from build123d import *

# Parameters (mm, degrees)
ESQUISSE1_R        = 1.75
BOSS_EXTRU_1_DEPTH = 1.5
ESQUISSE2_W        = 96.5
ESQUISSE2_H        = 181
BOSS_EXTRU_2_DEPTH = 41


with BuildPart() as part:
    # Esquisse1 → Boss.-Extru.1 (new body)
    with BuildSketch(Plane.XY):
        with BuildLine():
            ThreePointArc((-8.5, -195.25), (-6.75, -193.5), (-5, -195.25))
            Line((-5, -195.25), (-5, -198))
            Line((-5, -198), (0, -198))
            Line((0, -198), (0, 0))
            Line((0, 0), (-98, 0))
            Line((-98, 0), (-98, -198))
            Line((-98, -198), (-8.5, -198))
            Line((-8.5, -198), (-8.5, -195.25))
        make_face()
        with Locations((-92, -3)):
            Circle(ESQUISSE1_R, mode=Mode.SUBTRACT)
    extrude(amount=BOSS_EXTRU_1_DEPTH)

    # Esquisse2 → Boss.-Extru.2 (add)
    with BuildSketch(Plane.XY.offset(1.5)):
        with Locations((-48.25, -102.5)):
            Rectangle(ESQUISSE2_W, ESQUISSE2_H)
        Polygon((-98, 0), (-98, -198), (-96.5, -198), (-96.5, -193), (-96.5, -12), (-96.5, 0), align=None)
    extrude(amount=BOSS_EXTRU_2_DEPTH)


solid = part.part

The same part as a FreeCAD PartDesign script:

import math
import FreeCAD as App
import Part
import Sketcher

V = App.Vector
Q = App.Units.Quantity


def add_polygon(sketch, points):
    """Adds a closed chain of lines whose ends are joined by coincident constraints."""
    first, n = sketch.GeometryCount, len(points)
    for a, b in zip(points, points[1:] + points[:1]):
        sketch.addGeometry(Part.LineSegment(App.Vector(*a, 0), App.Vector(*b, 0)), False)
    for i in range(n):
        sketch.addConstraint(Sketcher.Constraint("Coincident", first + i, 2, first + (i + 1) % n, 1))

doc = App.newDocument("Part")
body = doc.addObject("PartDesign::Body", "Body")

# Sketch on XY plane
sketch1 = body.newObject("Sketcher::SketchObject", "Sketch")
sketch1.AttachmentSupport = (doc.getObject("XY_Plane"), [""])
sketch1.MapMode = "FlatFace"
sketch1.addGeometry(Part.ArcOfCircle(Part.Circle(V(-6.8, -195.2, 0), V(0, 0, 1), 1.8), math.radians(0), math.radians(180)), False)
sketch1.addGeometry(Part.LineSegment(V(-5, -195.2, 0), V(-5, -198, 0)), False)
sketch1.addGeometry(Part.LineSegment(V(-5, -198, 0), V(0, -198, 0)), False)
sketch1.addGeometry(Part.LineSegment(V(0, -198, 0), V(0, 0, 0)), False)
sketch1.addGeometry(Part.LineSegment(V(0, 0, 0), V(-98, 0, 0)), False)
sketch1.addGeometry(Part.LineSegment(V(-98, 0, 0), V(-98, -198, 0)), False)
sketch1.addGeometry(Part.LineSegment(V(-98, -198, 0), V(-8.5, -198, 0)), False)
sketch1.addGeometry(Part.LineSegment(V(-8.5, -198, 0), V(-8.5, -195.2, 0)), False)
sketch1.addGeometry(Part.Circle(V(-92, -3, 0), V(0, 0, 1), 1.8), False)
sketch1.addConstraint(Sketcher.Constraint("Tangent", 0, 1, 1, 1))
sketch1.addConstraint(Sketcher.Constraint("Coincident", 1, 2, 2, 1))
sketch1.addConstraint(Sketcher.Constraint("Coincident", 2, 2, 3, 1))
sketch1.addConstraint(Sketcher.Constraint("Coincident", 3, 2, 4, 1))
sketch1.addConstraint(Sketcher.Constraint("Coincident", 4, 2, 5, 1))
sketch1.addConstraint(Sketcher.Constraint("Coincident", 5, 2, 6, 1))
sketch1.addConstraint(Sketcher.Constraint("Coincident", 6, 2, 7, 1))
sketch1.addConstraint(Sketcher.Constraint("Tangent", 7, 2, 0, 2))
sketch1.addConstraint(Sketcher.Constraint("Vertical", 1))
sketch1.addConstraint(Sketcher.Constraint("Horizontal", 2))
sketch1.addConstraint(Sketcher.Constraint("Vertical", 3))
sketch1.addConstraint(Sketcher.Constraint("Horizontal", 4))
sketch1.addConstraint(Sketcher.Constraint("Vertical", 5))
sketch1.addConstraint(Sketcher.Constraint("Horizontal", 6))
sketch1.addConstraint(Sketcher.Constraint("Vertical", 7))
sketch1.addConstraint(Sketcher.Constraint("Coincident", 3, 2, -1, 1))
sketch1.addConstraint(Sketcher.Constraint("Equal", 0, 8))
sketch1.addConstraint(Sketcher.Constraint("Horizontal", 2, 2, 5, 2))
sketch1.addConstraint(Sketcher.Constraint("Diameter", 8, Q("3.5 mm")))
sketch1.addConstraint(Sketcher.Constraint("DistanceX", 2, 1, 2, 2, Q("5 mm")))
sketch1.addConstraint(Sketcher.Constraint("DistanceX", 4, 2, 4, 1, Q("98 mm")))
sketch1.addConstraint(Sketcher.Constraint("DistanceY", 3, 1, 3, 2, Q("198 mm")))
sketch1.addConstraint(Sketcher.Constraint("DistanceX", 8, 3, -1, 1, Q("92 mm")))
sketch1.addConstraint(Sketcher.Constraint("DistanceY", 8, 3, -1, 1, Q("3 mm")))
sketch1.addConstraint(Sketcher.Constraint("DistanceY", 1, 2, 1, 1, Q("2.75 mm")))
pad1 = body.newObject("PartDesign::Pad", "Pad")
pad1.Profile = sketch1
pad1.Length = 1.5

# Sketch on XY plane
sketch2 = body.newObject("Sketcher::SketchObject", "Sketch001")
sketch2.AttachmentSupport = (doc.getObject("XY_Plane"), [""])
sketch2.MapMode = "FlatFace"
sketch2.AttachmentOffset = App.Placement(V(0, 0, 1.5), App.Rotation())
add_polygon(sketch2, [(-96.5, -193), (0, -193), (0, -12), (-96.5, -12), (-96.5, 0), (-98, 0), (-98, -198), (-96.5, -198)])  # lines 0-7
sketch2.addConstraint(Sketcher.Constraint("Horizontal", 0))
sketch2.addConstraint(Sketcher.Constraint("Vertical", 1))
sketch2.addConstraint(Sketcher.Constraint("Horizontal", 2))
sketch2.addConstraint(Sketcher.Constraint("Vertical", 3))
sketch2.addConstraint(Sketcher.Constraint("Horizontal", 4))
sketch2.addConstraint(Sketcher.Constraint("Vertical", 5))
sketch2.addConstraint(Sketcher.Constraint("Horizontal", 6))
sketch2.addConstraint(Sketcher.Constraint("Vertical", 7))
sketch2.addConstraint(Sketcher.Constraint("PointOnObject", 0, 2, -2))
sketch2.addConstraint(Sketcher.Constraint("PointOnObject", 3, 2, -1))
sketch2.addConstraint(Sketcher.Constraint("Vertical", 3, 2, 6, 2))
sketch2.addConstraint(Sketcher.Constraint("DistanceY", 1, 1, 1, 2, Q("181 mm")))
sketch2.addConstraint(Sketcher.Constraint("DistanceY", 3, 1, 3, 2, Q("12 mm")))
sketch2.addConstraint(Sketcher.Constraint("DistanceY", 5, 2, 5, 1, Q("198 mm")))
sketch2.addConstraint(Sketcher.Constraint("DistanceX", 0, 1, 0, 2, Q("96.5 mm")))
sketch2.addConstraint(Sketcher.Constraint("DistanceX", 4, 2, 4, 1, Q("1.5 mm")))
pad2 = body.newObject("PartDesign::Pad", "Pad001")
pad2.Profile = sketch2
pad2.Length = 41

doc.recompute()
